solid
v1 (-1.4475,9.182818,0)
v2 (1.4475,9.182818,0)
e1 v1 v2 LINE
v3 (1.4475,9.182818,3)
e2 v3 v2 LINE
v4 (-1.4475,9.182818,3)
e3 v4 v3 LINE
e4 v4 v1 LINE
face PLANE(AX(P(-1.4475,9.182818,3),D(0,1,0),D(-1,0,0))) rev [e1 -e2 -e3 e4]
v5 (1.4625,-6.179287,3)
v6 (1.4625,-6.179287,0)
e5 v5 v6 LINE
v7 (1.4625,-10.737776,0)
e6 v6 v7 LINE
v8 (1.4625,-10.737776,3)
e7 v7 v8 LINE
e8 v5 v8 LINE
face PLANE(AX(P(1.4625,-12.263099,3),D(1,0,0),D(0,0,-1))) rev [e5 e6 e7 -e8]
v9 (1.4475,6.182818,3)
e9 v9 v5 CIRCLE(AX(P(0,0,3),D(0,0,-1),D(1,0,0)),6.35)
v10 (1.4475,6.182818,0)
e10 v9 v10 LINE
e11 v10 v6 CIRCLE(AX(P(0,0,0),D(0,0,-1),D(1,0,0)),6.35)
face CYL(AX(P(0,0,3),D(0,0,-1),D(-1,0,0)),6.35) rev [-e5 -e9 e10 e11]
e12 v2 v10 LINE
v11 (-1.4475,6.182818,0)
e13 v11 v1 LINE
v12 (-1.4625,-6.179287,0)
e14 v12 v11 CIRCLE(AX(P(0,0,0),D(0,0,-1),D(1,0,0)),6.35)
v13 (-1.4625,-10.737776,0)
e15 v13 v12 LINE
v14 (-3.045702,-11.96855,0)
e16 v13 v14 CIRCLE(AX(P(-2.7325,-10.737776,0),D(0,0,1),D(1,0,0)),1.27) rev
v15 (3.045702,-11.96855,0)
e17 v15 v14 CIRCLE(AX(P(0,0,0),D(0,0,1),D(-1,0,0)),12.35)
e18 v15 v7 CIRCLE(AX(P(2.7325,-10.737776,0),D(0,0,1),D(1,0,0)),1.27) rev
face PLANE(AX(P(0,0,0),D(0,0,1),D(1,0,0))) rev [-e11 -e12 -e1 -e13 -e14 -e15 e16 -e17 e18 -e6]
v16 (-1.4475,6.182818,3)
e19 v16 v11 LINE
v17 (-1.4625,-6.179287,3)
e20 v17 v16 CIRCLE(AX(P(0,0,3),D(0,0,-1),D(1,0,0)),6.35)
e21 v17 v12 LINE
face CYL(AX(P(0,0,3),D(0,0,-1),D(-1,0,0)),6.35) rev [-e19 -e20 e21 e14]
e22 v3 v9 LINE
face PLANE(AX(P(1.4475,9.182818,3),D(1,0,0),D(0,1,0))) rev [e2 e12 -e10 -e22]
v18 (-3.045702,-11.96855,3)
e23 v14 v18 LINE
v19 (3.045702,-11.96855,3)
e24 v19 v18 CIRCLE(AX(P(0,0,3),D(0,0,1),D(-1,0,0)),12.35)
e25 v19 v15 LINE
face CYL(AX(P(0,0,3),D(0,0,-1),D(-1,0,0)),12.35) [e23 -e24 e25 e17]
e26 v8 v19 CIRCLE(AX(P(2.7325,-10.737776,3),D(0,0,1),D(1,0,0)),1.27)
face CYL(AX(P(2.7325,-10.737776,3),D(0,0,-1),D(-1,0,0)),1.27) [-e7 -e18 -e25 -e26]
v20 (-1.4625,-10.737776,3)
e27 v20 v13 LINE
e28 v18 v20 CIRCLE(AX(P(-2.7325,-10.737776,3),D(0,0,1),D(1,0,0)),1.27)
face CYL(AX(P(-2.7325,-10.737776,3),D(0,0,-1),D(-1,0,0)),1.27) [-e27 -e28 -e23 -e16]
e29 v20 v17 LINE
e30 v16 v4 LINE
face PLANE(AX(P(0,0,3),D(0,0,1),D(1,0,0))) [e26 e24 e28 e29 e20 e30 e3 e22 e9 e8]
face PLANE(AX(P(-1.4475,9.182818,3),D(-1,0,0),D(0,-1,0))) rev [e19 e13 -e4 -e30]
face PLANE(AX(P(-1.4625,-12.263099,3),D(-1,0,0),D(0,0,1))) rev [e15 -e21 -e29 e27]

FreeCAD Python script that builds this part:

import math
import FreeCAD as App
import Part
import Sketcher
from FreeCAD import Vector
Q = App.Units.Quantity


def edges_at(feature, points):
    """Names of the edges that pass closest to the given points."""
    edges = feature.Shape.Edges
    near = lambda p: min(range(len(edges)), key=lambda i: edges[i].distToShape(Part.Vertex(*p))[0])
    return sorted({f"Edge{near(p) + 1}" for p in points})

doc = App.newDocument("Part")
params = doc.addObject("Spreadsheet::Sheet", "Params")
for row, (alias, value) in enumerate([
    ("sketch1_height", "3 mm"),
    ("sketch1_radius", "6.35 mm"),
    ("sketch1_radius2", "12.35 mm"),
    ("pad1_length", "3 mm"),
    ("fillet_radius", "1.27 mm"),
], start=1):
    params.set(f"A{row}", alias)
    params.set(f"B{row}", "=" + value)
    params.setAlias(f"B{row}", alias)

body = doc.addObject("PartDesign::Body", "Body")

sketch1 = body.newObject("Sketcher::SketchObject", "Sketch")
sketch1.AttachmentSupport = (doc.getObject("XY_Plane"), [""])
sketch1.MapMode = "FlatFace"
sketch1.addGeometry([
    Part.LineSegment(Vector(-1.4, 9.2, 0), Vector(1.4, 9.2, 0)),
    Part.LineSegment(Vector(1.4, 9.2, 0), Vector(1.4, 6.2, 0)),
    Part.ArcOfCircle(Part.Circle(Vector(0, 0, 0), Vector(0, 0, 1), 6.3), math.radians(-77), math.radians(77)),
    Part.LineSegment(Vector(1.5, -6.2, 0), Vector(1.5, -12.3, 0)),
    Part.ArcOfCircle(Part.Circle(Vector(0, 0, 0), Vector(0, 0, 1), 12.3), math.radians(-83), math.radians(263)),
    Part.LineSegment(Vector(-1.5, -12.3, 0), Vector(-1.5, -6.2, 0)),
    Part.ArcOfCircle(Part.Circle(Vector(0, 0, 0), Vector(0, 0, 1), 6.3), math.radians(103), math.radians(257)),
    Part.LineSegment(Vector(-1.4, 6.2, 0), Vector(-1.4, 9.2, 0)),
], False)
sketch1.addConstraint([
    Sketcher.Constraint("Coincident", 0, 2, 1, 1),
    Sketcher.Constraint("Coincident", 1, 2, 2, 2),
    Sketcher.Constraint("Coincident", 2, 1, 3, 1),
    Sketcher.Constraint("Coincident", 3, 2, 4, 1),
    Sketcher.Constraint("Coincident", 4, 2, 5, 1),
    Sketcher.Constraint("Coincident", 5, 2, 6, 2),
    Sketcher.Constraint("Coincident", 6, 1, 7, 1),
    Sketcher.Constraint("Coincident", 7, 2, 0, 1),
    Sketcher.Constraint("Horizontal", 0),
    Sketcher.Constraint("Vertical", 1),
    Sketcher.Constraint("Vertical", 3),
    Sketcher.Constraint("Vertical", 5),
    Sketcher.Constraint("Vertical", 7),
    Sketcher.Constraint("Coincident", 2, 3, -1, 1),
    Sketcher.Constraint("Coincident", 4, 3, -1, 1),
    Sketcher.Constraint("Coincident", 6, 3, -1, 1),
    Sketcher.Constraint("Equal", 2, 6),
    Sketcher.Constraint("Horizontal", 3, 2, 4, 2),
    Sketcher.Constraint("Horizontal", 1, 2, 6, 1),
    Sketcher.Constraint("DistanceY", 1, 2, 1, 1, Q("3 mm")),
    Sketcher.Constraint("Radius", 2, Q("6.35 mm")),
    Sketcher.Constraint("Radius", 4, Q("12.35 mm")),
    Sketcher.Constraint("DistanceX", 0, 1, 0, 2, Q("2.895 mm")),
    Sketcher.Constraint("DistanceX", 1, 2, 2, 1, Q("0.015 mm")),
])
sketch1.setExpression("Constraints[19]", "Params.sketch1_height")
sketch1.setExpression("Constraints[20]", "Params.sketch1_radius")
sketch1.setExpression("Constraints[21]", "Params.sketch1_radius2")
pad1 = body.newObject("PartDesign::Pad", "Pad")
pad1.Profile = sketch1
pad1.setExpression("Length", "Params.pad1_length")
doc.recompute()

fillet = body.newObject("PartDesign::Fillet", "Fillet")
fillet.Base = (pad1, edges_at(pad1, [(-1.462, -12.263, 1.5), (1.462, -12.263, 1.5)]))
fillet.setExpression("Radius", "Params.fillet_radius")

doc.recompute()
